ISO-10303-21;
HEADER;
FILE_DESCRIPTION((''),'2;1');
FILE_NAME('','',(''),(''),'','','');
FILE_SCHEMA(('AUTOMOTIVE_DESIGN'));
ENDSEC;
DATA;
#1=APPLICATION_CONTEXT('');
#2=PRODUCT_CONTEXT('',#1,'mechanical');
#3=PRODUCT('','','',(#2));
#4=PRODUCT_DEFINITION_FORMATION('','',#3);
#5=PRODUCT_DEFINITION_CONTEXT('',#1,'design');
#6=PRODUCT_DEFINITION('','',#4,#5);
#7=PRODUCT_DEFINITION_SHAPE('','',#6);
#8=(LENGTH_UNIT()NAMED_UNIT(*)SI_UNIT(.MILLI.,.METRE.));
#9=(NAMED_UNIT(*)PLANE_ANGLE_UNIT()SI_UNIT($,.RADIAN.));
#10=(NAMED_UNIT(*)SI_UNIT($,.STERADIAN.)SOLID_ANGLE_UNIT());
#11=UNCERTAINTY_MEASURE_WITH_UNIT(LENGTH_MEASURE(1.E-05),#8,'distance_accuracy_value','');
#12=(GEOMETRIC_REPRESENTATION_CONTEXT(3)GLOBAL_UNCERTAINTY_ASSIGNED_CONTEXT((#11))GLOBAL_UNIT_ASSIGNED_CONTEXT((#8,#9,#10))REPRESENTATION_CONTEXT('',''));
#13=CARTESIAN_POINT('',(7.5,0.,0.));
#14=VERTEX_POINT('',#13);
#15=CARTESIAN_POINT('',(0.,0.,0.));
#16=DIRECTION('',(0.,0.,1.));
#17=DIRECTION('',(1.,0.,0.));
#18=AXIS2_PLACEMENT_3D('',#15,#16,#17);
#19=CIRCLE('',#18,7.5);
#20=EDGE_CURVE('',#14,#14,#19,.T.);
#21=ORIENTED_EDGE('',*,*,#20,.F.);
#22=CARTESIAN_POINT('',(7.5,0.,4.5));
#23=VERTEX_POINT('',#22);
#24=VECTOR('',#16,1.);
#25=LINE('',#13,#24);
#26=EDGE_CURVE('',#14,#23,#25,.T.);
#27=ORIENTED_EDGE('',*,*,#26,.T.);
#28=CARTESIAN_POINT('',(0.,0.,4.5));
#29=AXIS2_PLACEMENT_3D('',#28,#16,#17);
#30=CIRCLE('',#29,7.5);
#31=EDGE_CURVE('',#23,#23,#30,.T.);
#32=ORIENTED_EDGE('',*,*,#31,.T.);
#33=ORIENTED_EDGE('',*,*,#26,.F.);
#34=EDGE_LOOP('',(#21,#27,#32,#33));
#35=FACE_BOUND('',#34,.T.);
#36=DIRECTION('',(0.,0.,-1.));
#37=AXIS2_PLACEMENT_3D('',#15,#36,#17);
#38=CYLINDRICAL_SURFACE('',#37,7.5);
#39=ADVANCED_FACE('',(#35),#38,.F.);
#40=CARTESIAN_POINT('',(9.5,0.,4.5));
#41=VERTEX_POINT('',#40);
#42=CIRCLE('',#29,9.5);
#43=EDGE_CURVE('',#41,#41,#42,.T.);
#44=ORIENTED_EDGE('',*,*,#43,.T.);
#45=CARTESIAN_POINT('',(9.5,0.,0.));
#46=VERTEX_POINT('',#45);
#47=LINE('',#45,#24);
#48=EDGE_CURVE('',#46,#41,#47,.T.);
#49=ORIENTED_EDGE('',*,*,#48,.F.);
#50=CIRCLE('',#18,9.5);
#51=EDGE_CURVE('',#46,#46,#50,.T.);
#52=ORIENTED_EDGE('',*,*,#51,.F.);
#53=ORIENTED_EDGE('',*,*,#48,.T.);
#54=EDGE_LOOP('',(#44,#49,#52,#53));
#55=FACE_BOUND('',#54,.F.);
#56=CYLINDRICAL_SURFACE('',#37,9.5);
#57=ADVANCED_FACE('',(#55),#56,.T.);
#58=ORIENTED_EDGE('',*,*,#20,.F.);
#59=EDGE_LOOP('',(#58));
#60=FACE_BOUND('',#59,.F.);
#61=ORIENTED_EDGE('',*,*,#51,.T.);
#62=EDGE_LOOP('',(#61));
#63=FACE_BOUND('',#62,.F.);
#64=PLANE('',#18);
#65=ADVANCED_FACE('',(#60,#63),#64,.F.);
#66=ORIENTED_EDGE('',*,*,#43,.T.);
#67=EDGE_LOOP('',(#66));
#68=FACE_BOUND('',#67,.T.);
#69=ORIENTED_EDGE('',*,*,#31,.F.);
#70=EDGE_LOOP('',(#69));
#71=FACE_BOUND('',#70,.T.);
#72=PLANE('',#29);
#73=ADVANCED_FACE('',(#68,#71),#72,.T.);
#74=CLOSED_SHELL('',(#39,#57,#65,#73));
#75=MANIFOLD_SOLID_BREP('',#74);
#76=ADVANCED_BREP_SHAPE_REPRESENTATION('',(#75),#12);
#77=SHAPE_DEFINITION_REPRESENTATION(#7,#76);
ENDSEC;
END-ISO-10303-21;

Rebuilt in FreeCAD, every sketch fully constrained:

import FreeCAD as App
import Part
import Sketcher

V = App.Vector
Q = App.Units.Quantity

doc = App.newDocument("Part")
params = doc.addObject("Spreadsheet::Sheet", "Params")
for row, (alias, value) in enumerate([
    ("sketch1_diameter", "19 mm"),
    ("sketch1_diameter2", "15 mm"),
    ("pad1_length", "4.5 mm"),
], start=1):
    params.set(f"A{row}", alias)
    params.set(f"B{row}", "=" + value)
    params.setAlias(f"B{row}", alias)

body = doc.addObject("PartDesign::Body", "Body")

# Sketch on XY plane
sketch1 = body.newObject("Sketcher::SketchObject", "Sketch")
sketch1.AttachmentSupport = (doc.getObject("XY_Plane"), [""])
sketch1.MapMode = "FlatFace"
sketch1.addGeometry([
    Part.Circle(V(0, 0, 0), V(0, 0, 1), 10),
    Part.Circle(V(0, 0, 0), V(0, 0, 1), 8),
], False)
sketch1.addConstraint([
    Sketcher.Constraint("Coincident", 0, 3, -1, 1),
    Sketcher.Constraint("Coincident", 1, 3, -1, 1),
    Sketcher.Constraint("Diameter", 0, Q("19 mm")),
    Sketcher.Constraint("Diameter", 1, Q("15 mm")),
])
sketch1.setExpression("Constraints[2]", "Params.sketch1_diameter")
sketch1.setExpression("Constraints[3]", "Params.sketch1_diameter2")
pad1 = body.newObject("PartDesign::Pad", "Pad")
pad1.Profile = sketch1
pad1.setExpression("Length", "Params.pad1_length")

doc.recompute()
